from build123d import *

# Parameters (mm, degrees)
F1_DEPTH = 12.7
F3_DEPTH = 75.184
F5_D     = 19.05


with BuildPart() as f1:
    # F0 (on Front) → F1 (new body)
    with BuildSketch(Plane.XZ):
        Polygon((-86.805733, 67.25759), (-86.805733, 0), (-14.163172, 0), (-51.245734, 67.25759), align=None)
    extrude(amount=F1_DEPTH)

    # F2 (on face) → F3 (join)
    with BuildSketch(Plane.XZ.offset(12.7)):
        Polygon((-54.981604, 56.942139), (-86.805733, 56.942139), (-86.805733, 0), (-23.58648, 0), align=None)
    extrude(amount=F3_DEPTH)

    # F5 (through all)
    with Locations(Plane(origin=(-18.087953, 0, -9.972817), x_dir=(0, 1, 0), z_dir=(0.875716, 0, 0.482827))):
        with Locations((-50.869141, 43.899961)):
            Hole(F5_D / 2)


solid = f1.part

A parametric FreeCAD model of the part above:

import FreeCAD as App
import Part
import Sketcher
from FreeCAD import Vector
Q = App.Units.Quantity

doc = App.newDocument("Part")
body = doc.addObject("PartDesign::Body", "Body")

# Sketch on XZ plane
sketch1 = body.newObject("Sketcher::SketchObject", "Sketch")
sketch1.AttachmentSupport = (doc.getObject("XZ_Plane"), [""])
sketch1.MapMode = "FlatFace"
sketch1.addGeometry(Part.LineSegment(Vector(-86.805733, 67.25759, 0), Vector(-86.805733, 0, 0)), False)
sketch1.addGeometry(Part.LineSegment(Vector(-86.805733, 0, 0), Vector(-14.163172, 0, 0)), False)
sketch1.addGeometry(Part.LineSegment(Vector(-14.163172, 0, 0), Vector(-51.245734, 67.25759, 0)), False)
sketch1.addGeometry(Part.LineSegment(Vector(-51.245734, 67.25759, 0), Vector(-86.805733, 67.25759, 0)), False)
sketch1.addConstraint(Sketcher.Constraint("Coincident", 0, 2, 1, 1))
sketch1.addConstraint(Sketcher.Constraint("Coincident", 1, 2, 2, 1))
sketch1.addConstraint(Sketcher.Constraint("Coincident", 2, 2, 3, 1))
sketch1.addConstraint(Sketcher.Constraint("Coincident", 3, 2, 0, 1))
sketch1.addConstraint(Sketcher.Constraint("Vertical", 0))
sketch1.addConstraint(Sketcher.Constraint("Horizontal", 1))
sketch1.addConstraint(Sketcher.Constraint("Horizontal", 3))
sketch1.addConstraint(Sketcher.Constraint("PointOnObject", 0, 2, -1))
sketch1.addConstraint(Sketcher.Constraint("DistanceX", 3, 2, 3, 1, Q("1.4 in")))
sketch1.addConstraint(Sketcher.Constraint("DistanceX", 1, 1, 1, 2, 72.642561))
sketch1.addConstraint(Sketcher.Constraint("DistanceY", 0, 2, 0, 1, 67.25759))
sketch1.addConstraint(Sketcher.Constraint("DistanceX", 0, 2, -1, 1, 86.805733))
pad1 = body.newObject("PartDesign::Pad", "Pad")
pad1.Profile = sketch1
pad1.Length = Q("0.5 in")

# Sketch on XZ plane
sketch2 = body.newObject("Sketcher::SketchObject", "Sketch001")
sketch2.AttachmentSupport = (doc.getObject("XZ_Plane"), [""])
sketch2.MapMode = "FlatFace"
sketch2.AttachmentOffset = App.Placement(Vector(0, 0, 0.5 * 25.4), App.Rotation())
sketch2.addGeometry(Part.LineSegment(Vector(-54.981604, 56.942139, 0), Vector(-86.805733, 56.942139, 0)), False)
sketch2.addGeometry(Part.LineSegment(Vector(-86.805733, 56.942139, 0), Vector(-86.805733, 0, 0)), False)
sketch2.addGeometry(Part.LineSegment(Vector(-86.805733, 0, 0), Vector(-23.58648, 0, 0)), False)
sketch2.addGeometry(Part.LineSegment(Vector(-23.58648, 0, 0), Vector(-54.981604, 56.942139, 0)), False)
sketch2.addConstraint(Sketcher.Constraint("Coincident", 0, 2, 1, 1))
sketch2.addConstraint(Sketcher.Constraint("Coincident", 1, 2, 2, 1))
sketch2.addConstraint(Sketcher.Constraint("Coincident", 2, 2, 3, 1))
sketch2.addConstraint(Sketcher.Constraint("Coincident", 3, 2, 0, 1))
sketch2.addConstraint(Sketcher.Constraint("Horizontal", 0))
sketch2.addConstraint(Sketcher.Constraint("Vertical", 1))
sketch2.addConstraint(Sketcher.Constraint("Horizontal", 2))
sketch2.addConstraint(Sketcher.Constraint("PointOnObject", 1, 2, -1))
sketch2.addConstraint(Sketcher.Constraint("DistanceX", 0, 2, 0, 1, 31.824129))
sketch2.addConstraint(Sketcher.Constraint("DistanceY", 1, 2, 1, 1, 56.942139))
sketch2.addConstraint(Sketcher.Constraint("Distance", 3, 65.023542))
sketch2.addConstraint(Sketcher.Constraint("DistanceX", 2, 2, -1, 1, 23.58648))
pad2 = body.newObject("PartDesign::Pad", "Pad001")
pad2.Profile = sketch2
pad2.Length = Q("2.96 in")

# Sketch on an angled plane
sketch3 = body.newObject("Sketcher::SketchObject", "Sketch002")
sketch3.Placement = App.Placement(Vector(-18.087955, 0, -9.972814), App.Rotation(Vector(0, 1, 0), Vector(-0.482826897, 0, 0.875715814), Vector(0.875715814, 0, 0.482826897), "ZXY"))
sketch3.addGeometry(Part.Circle(Vector(-50.869141, 43.899958, 0), Vector(0, 0, 1), 9.525), False)
sketch3.addConstraint(Sketcher.Constraint("Diameter", 0, Q("0.75 in")))
sketch3.addConstraint(Sketcher.Constraint("DistanceX", 0, 3, -1, 1, 50.869141))
sketch3.addConstraint(Sketcher.Constraint("DistanceY", -1, 1, 0, 3, 43.899958))
doc.recompute()
hole = body.newObject("PartDesign::Hole", "Hole")
hole.Profile = sketch3
hole.ThreadType = "None"
hole.Diameter = Q("0.75 in")
hole.DepthType = "ThroughAll"

doc.recompute()
